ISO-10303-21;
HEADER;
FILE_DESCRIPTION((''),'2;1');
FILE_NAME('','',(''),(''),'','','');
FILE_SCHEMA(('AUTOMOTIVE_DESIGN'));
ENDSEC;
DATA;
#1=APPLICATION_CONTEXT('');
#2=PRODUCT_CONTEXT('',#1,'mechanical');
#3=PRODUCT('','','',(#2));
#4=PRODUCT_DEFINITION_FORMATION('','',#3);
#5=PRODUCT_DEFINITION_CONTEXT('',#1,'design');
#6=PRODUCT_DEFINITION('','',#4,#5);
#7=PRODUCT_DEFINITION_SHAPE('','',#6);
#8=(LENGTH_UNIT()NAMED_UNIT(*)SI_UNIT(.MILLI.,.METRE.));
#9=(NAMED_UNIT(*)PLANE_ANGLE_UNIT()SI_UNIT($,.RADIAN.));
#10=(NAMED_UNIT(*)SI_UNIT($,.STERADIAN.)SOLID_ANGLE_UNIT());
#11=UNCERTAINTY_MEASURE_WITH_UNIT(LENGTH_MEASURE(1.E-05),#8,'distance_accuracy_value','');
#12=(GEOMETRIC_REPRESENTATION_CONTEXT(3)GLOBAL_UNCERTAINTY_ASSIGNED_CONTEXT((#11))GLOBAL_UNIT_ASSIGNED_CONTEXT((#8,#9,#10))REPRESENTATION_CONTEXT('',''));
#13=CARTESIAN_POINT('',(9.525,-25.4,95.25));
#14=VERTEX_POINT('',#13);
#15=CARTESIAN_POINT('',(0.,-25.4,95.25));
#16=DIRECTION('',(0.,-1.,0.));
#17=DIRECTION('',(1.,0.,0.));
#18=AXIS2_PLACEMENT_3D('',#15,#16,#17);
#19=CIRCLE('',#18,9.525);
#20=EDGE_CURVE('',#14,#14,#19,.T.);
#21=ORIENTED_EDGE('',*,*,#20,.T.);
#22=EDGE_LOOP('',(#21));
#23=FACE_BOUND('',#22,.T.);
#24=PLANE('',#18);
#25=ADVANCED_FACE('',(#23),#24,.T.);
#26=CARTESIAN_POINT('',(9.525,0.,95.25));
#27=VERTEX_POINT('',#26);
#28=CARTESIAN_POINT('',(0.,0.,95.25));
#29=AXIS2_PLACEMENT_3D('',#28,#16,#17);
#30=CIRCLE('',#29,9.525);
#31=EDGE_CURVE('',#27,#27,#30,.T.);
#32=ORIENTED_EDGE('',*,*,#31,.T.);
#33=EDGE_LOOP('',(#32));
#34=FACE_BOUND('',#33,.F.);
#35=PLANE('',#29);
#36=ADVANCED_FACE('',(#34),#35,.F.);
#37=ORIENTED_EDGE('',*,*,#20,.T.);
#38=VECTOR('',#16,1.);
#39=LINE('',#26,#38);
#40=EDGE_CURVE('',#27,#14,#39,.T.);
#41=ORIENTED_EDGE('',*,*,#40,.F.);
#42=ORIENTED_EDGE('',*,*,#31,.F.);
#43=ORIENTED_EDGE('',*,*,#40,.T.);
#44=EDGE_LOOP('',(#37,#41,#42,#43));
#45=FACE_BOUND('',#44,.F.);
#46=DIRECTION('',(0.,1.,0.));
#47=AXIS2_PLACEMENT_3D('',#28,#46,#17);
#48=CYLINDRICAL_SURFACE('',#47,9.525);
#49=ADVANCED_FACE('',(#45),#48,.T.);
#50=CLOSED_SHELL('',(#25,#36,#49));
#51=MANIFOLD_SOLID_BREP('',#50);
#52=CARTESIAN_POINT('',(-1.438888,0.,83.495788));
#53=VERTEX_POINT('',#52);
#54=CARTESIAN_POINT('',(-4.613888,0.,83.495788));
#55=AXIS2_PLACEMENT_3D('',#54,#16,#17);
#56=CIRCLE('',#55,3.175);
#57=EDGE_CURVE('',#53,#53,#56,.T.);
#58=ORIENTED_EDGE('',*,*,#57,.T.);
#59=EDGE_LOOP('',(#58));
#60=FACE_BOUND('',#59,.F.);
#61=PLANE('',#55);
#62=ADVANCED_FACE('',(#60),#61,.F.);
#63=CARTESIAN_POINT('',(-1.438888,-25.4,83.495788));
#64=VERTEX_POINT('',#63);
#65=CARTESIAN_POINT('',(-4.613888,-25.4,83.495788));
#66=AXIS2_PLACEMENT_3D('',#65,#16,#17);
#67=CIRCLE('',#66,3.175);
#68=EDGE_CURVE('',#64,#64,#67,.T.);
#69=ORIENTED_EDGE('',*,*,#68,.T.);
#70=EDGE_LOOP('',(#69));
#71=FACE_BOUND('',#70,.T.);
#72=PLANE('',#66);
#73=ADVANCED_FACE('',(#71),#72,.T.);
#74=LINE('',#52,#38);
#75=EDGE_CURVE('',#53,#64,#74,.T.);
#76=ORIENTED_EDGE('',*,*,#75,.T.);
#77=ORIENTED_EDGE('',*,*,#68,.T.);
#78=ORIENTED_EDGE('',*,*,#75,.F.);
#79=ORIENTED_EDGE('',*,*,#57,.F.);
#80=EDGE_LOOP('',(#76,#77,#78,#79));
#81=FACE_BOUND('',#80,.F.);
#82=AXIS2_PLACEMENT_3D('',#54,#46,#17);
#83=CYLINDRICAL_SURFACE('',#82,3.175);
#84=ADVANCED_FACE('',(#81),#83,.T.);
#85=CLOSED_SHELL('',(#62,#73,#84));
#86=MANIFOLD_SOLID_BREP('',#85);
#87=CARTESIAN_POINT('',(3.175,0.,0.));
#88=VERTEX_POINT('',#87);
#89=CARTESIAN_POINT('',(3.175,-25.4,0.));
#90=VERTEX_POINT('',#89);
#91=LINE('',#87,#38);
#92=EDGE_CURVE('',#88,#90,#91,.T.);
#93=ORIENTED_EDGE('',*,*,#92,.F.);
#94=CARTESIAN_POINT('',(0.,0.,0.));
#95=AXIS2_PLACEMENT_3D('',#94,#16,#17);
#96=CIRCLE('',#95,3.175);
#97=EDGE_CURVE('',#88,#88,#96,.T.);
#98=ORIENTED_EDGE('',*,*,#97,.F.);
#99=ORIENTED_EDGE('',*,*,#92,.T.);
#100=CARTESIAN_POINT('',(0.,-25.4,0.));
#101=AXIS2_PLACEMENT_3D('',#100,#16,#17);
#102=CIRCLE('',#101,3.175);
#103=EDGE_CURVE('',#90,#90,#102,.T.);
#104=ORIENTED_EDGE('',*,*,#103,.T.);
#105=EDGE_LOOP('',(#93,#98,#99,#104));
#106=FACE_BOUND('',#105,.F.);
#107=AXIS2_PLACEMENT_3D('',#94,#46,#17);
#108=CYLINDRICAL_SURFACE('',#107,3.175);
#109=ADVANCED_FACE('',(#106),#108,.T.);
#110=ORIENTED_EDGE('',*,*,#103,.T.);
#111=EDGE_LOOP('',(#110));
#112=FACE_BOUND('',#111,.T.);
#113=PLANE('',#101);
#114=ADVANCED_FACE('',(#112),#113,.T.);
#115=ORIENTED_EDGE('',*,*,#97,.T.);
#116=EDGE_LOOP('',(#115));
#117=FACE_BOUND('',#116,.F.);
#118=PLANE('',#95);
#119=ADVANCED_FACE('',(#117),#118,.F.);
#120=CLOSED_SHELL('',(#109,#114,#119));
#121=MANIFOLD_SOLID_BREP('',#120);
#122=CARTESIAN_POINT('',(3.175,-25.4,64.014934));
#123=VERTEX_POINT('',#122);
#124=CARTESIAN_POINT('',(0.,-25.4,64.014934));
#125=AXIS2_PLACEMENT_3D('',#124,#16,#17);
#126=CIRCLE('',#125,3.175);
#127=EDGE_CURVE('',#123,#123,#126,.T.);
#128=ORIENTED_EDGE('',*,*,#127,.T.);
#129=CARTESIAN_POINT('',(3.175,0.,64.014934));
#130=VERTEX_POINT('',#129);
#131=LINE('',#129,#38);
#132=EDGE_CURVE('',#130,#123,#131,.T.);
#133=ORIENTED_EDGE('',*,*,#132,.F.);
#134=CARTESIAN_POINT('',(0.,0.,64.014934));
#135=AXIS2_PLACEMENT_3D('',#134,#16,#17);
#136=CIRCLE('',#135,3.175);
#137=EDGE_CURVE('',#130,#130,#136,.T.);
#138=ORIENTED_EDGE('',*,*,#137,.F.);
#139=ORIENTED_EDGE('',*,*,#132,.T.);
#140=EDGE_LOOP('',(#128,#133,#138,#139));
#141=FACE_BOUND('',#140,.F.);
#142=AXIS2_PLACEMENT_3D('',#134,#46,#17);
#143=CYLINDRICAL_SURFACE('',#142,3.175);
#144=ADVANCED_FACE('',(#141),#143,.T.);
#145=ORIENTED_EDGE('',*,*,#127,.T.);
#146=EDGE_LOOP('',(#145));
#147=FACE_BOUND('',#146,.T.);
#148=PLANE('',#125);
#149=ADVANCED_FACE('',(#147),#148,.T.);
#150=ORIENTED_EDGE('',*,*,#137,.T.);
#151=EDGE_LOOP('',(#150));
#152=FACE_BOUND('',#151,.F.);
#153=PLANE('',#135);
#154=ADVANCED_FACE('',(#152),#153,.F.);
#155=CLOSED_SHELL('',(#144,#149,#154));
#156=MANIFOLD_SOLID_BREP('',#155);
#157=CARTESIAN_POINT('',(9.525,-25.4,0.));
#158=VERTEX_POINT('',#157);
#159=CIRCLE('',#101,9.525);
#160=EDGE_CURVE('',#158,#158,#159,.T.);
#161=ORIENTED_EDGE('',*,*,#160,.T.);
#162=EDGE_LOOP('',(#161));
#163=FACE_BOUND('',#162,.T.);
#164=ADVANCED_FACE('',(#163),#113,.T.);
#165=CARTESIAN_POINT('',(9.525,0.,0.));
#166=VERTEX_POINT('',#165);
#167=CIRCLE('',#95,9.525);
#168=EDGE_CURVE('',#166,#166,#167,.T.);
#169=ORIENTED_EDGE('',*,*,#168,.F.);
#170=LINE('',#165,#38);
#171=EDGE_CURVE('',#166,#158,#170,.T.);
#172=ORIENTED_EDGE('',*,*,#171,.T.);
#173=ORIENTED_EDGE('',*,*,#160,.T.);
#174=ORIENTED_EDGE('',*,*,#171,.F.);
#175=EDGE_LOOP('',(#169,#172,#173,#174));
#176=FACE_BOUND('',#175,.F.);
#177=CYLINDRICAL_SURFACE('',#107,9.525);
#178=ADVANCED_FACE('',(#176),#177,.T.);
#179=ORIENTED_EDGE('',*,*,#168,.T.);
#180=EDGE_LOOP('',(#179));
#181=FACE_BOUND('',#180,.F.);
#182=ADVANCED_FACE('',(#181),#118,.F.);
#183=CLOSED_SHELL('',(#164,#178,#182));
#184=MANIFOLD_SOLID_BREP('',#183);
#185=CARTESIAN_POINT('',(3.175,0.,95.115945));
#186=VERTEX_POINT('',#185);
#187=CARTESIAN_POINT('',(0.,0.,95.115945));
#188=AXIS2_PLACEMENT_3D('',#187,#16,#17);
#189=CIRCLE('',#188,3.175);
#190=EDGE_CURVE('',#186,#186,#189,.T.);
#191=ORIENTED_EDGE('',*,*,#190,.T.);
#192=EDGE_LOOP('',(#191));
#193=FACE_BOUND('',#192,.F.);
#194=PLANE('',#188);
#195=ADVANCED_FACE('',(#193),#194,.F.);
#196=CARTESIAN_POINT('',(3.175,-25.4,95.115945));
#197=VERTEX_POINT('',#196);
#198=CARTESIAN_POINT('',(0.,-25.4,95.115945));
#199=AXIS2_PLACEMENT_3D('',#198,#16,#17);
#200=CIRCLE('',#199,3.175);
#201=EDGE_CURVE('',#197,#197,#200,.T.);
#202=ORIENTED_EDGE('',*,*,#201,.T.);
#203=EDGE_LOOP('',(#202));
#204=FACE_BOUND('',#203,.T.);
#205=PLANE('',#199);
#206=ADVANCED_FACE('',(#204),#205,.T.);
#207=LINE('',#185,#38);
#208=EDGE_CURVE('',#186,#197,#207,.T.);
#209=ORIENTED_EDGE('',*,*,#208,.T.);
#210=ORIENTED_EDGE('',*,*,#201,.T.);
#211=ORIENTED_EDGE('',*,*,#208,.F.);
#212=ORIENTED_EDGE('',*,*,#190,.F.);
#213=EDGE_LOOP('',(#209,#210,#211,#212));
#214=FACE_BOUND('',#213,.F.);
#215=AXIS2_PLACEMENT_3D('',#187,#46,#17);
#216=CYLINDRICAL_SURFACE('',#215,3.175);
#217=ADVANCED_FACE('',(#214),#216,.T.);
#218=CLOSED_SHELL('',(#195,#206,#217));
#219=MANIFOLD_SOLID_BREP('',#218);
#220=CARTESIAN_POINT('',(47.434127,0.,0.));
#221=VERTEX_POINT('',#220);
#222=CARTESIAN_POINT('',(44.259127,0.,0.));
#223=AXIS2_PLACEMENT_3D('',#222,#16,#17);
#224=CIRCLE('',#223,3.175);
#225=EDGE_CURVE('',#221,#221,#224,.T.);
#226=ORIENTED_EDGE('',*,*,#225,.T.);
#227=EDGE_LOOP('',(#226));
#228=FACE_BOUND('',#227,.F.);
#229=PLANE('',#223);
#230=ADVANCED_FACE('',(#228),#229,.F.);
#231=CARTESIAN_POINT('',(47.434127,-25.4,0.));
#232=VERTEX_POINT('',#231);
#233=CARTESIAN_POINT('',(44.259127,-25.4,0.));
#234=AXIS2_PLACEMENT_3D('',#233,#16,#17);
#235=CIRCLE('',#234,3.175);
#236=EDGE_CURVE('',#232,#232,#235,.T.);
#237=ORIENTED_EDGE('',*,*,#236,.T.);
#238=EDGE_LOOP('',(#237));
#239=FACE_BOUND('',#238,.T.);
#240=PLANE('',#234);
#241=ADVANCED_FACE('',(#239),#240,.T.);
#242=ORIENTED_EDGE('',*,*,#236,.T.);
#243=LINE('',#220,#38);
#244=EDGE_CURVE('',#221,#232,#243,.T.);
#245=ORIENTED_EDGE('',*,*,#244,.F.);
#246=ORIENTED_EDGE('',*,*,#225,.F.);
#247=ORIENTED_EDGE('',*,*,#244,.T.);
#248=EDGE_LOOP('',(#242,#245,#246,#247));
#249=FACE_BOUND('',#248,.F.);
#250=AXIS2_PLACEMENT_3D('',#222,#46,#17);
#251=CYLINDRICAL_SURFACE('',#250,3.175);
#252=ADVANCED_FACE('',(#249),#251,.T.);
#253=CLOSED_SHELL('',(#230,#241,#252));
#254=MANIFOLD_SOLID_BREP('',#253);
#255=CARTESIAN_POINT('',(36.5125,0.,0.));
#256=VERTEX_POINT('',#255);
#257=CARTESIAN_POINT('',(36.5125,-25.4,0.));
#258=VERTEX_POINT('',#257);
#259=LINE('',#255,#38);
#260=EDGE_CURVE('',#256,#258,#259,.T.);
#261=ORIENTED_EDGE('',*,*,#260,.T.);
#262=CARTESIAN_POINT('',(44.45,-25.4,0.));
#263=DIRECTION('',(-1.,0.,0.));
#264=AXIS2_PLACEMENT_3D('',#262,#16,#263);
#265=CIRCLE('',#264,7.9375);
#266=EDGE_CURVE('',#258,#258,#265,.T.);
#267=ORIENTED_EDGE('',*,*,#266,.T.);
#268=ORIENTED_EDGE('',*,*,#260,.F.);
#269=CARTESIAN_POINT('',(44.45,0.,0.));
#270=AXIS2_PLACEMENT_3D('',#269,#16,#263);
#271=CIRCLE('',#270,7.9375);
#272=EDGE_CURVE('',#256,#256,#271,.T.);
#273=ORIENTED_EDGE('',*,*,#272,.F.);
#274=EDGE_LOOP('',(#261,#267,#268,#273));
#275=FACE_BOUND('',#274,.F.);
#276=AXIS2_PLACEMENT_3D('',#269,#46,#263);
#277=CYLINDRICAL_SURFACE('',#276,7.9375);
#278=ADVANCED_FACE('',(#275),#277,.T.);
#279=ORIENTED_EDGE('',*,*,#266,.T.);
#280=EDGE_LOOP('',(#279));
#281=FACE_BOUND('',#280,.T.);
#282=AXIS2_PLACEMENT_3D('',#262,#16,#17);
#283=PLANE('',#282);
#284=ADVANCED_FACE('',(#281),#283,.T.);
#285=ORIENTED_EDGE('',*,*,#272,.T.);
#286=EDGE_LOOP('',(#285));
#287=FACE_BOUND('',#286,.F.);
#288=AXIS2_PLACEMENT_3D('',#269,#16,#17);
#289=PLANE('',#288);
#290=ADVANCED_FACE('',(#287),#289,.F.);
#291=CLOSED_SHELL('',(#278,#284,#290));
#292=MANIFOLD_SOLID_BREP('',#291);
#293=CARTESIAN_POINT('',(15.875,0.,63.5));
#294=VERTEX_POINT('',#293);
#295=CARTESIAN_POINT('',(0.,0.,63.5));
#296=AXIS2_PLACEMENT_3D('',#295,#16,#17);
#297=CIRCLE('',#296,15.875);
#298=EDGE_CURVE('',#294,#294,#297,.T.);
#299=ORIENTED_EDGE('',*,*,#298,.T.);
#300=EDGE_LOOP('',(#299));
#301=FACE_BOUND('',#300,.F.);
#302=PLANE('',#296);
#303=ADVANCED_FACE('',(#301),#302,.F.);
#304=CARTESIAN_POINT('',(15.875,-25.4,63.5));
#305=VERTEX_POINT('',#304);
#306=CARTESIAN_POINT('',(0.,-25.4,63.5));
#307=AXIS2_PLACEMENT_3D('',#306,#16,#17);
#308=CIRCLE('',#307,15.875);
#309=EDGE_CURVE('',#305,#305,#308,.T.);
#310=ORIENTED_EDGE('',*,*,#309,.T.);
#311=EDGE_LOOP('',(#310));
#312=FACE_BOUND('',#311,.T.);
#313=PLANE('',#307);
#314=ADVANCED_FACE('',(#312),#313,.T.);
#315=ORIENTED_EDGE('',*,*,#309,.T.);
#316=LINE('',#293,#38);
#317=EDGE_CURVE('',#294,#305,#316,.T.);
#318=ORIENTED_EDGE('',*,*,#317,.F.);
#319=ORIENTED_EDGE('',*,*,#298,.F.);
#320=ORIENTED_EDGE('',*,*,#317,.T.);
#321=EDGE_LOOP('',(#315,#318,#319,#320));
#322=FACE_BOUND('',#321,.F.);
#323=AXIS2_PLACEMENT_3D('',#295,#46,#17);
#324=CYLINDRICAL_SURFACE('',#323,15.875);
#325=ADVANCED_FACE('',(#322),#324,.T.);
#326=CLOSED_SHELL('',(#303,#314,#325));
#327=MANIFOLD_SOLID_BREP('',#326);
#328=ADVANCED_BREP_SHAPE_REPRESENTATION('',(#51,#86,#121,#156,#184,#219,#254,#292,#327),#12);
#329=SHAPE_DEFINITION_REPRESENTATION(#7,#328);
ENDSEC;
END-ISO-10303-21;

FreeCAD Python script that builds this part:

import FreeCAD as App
import Part
import Sketcher
from FreeCAD import Vector
Q = App.Units.Quantity

doc = App.newDocument("Part")
params = doc.addObject("Spreadsheet::Sheet", "Params")
for row, (alias, value) in enumerate([
    ("sketch1_diameter", "0.625 in"),
    ("pad1_length", "1 in"),
    ("sketch2_diameter", "0.75 in"),
    ("pad2_length", "1 in"),
    ("sketch3_diameter", "0.75 in"),
    ("pad3_length", "1 in"),
    ("sketch4_diameter", "1.25 in"),
    ("pad4_length", "1 in"),
    ("sketch5_diameter", "0.25 in"),
    ("pad5_length", "1 in"),
    ("sketch6_diameter", "0.25 in"),
    ("pad6_length", "1 in"),
    ("sketch7_diameter", "0.25 in"),
    ("pad7_length", "1 in"),
    ("sketch8_diameter", "0.25 in"),
    ("pad8_length", "1 in"),
    ("sketch9_diameter", "0.25 in"),
    ("pad9_length", "1 in"),
], start=1):
    params.set(f"A{row}", alias)
    params.set(f"B{row}", "=" + value)
    params.setAlias(f"B{row}", alias)

body = doc.addObject("PartDesign::Body", "Body")

sketch1 = body.newObject("Sketcher::SketchObject", "Sketch")
sketch1.AttachmentSupport = (doc.getObject("XZ_Plane"), [""])
sketch1.MapMode = "FlatFace"
sketch1.addGeometry(Part.Circle(Vector(44.45, 0, 0), Vector(0, 0, 1), 7.9375), False)
sketch1.addConstraint([
    Sketcher.Constraint("PointOnObject", 0, 3, -1),
    Sketcher.Constraint("Diameter", 0, Q("0.625 in")),
    Sketcher.Constraint("DistanceX", -1, 1, 0, 3, Q("1.75 in")),
])
sketch1.setExpression("Constraints[1]", "Params.sketch1_diameter")
pad1 = body.newObject("PartDesign::Pad", "Pad")
pad1.Profile = sketch1
pad1.setExpression("Length", "Params.pad1_length")
body2 = doc.addObject("PartDesign::Body", "Body001")

sketch2 = body2.newObject("Sketcher::SketchObject", "Sketch001")
sketch2.AttachmentSupport = (doc.getObject("XZ_Plane001"), [""])
sketch2.MapMode = "FlatFace"
sketch2.addGeometry(Part.Circle(Vector(0, 0, 0), Vector(0, 0, 1), 9.525), False)
sketch2.addConstraint([
    Sketcher.Constraint("Coincident", 0, 3, -1, 1),
    Sketcher.Constraint("Diameter", 0, Q("0.75 in")),
])
sketch2.setExpression("Constraints[1]", "Params.sketch2_diameter")
pad2 = body2.newObject("PartDesign::Pad", "Pad001")
pad2.Profile = sketch2
pad2.setExpression("Length", "Params.pad2_length")
body3 = doc.addObject("PartDesign::Body", "Body002")

sketch3 = body3.newObject("Sketcher::SketchObject", "Sketch002")
sketch3.AttachmentSupport = (doc.getObject("XZ_Plane002"), [""])
sketch3.MapMode = "FlatFace"
sketch3.addGeometry(Part.Circle(Vector(0, 95.25, 0), Vector(0, 0, 1), 9.525), False)
sketch3.addConstraint([
    Sketcher.Constraint("PointOnObject", 0, 3, -2),
    Sketcher.Constraint("Diameter", 0, Q("0.75 in")),
    Sketcher.Constraint("DistanceY", -1, 1, 0, 3, Q("3.75 in")),
])
sketch3.setExpression("Constraints[1]", "Params.sketch3_diameter")
pad3 = body3.newObject("PartDesign::Pad", "Pad002")
pad3.Profile = sketch3
pad3.setExpression("Length", "Params.pad3_length")
body4 = doc.addObject("PartDesign::Body", "Body003")

sketch4 = body4.newObject("Sketcher::SketchObject", "Sketch003")
sketch4.AttachmentSupport = (doc.getObject("XZ_Plane003"), [""])
sketch4.MapMode = "FlatFace"
sketch4.addGeometry(Part.Circle(Vector(0, 63.5, 0), Vector(0, 0, 1), 15.875), False)
sketch4.addConstraint([
    Sketcher.Constraint("PointOnObject", 0, 3, -2),
    Sketcher.Constraint("Diameter", 0, Q("1.25 in")),
    Sketcher.Constraint("DistanceY", -1, 1, 0, 3, Q("2.5 in")),
])
sketch4.setExpression("Constraints[1]", "Params.sketch4_diameter")
pad4 = body4.newObject("PartDesign::Pad", "Pad003")
pad4.Profile = sketch4
pad4.setExpression("Length", "Params.pad4_length")
body5 = doc.addObject("PartDesign::Body", "Body004")

sketch5 = body5.newObject("Sketcher::SketchObject", "Sketch004")
sketch5.AttachmentSupport = (doc.getObject("XZ_Plane004"), [""])
sketch5.MapMode = "FlatFace"
sketch5.addGeometry(Part.Circle(Vector(0, 95.115945, 0), Vector(0, 0, 1), 3.175), False)
sketch5.addConstraint([
    Sketcher.Constraint("PointOnObject", 0, 3, -2),
    Sketcher.Constraint("Diameter", 0, Q("0.25 in")),
    Sketcher.Constraint("DistanceY", -1, 1, 0, 3, 95.115945),
])
sketch5.setExpression("Constraints[1]", "Params.sketch5_diameter")
pad5 = body5.newObject("PartDesign::Pad", "Pad004")
pad5.Profile = sketch5
pad5.setExpression("Length", "Params.pad5_length")
body6 = doc.addObject("PartDesign::Body", "Body005")

sketch6 = body6.newObject("Sketcher::SketchObject", "Sketch005")
sketch6.AttachmentSupport = (doc.getObject("XZ_Plane005"), [""])
sketch6.MapMode = "FlatFace"
sketch6.addGeometry(Part.Circle(Vector(0, 64.014934, 0), Vector(0, 0, 1), 3.175), False)
sketch6.addConstraint([
    Sketcher.Constraint("PointOnObject", 0, 3, -2),
    Sketcher.Constraint("Diameter", 0, Q("0.25 in")),
    Sketcher.Constraint("DistanceY", -1, 1, 0, 3, 64.014934),
])
sketch6.setExpression("Constraints[1]", "Params.sketch6_diameter")
pad6 = body6.newObject("PartDesign::Pad", "Pad005")
pad6.Profile = sketch6
pad6.setExpression("Length", "Params.pad6_length")
body7 = doc.addObject("PartDesign::Body", "Body006")

sketch7 = body7.newObject("Sketcher::SketchObject", "Sketch006")
sketch7.AttachmentSupport = (doc.getObject("XZ_Plane006"), [""])
sketch7.MapMode = "FlatFace"
sketch7.addGeometry(Part.Circle(Vector(0, 0, 0), Vector(0, 0, 1), 3.175), False)
sketch7.addConstraint([
    Sketcher.Constraint("Coincident", 0, 3, -1, 1),
    Sketcher.Constraint("Diameter", 0, Q("0.25 in")),
])
sketch7.setExpression("Constraints[1]", "Params.sketch7_diameter")
pad7 = body7.newObject("PartDesign::Pad", "Pad006")
pad7.Profile = sketch7
pad7.setExpression("Length", "Params.pad7_length")
body8 = doc.addObject("PartDesign::Body", "Body007")

sketch8 = body8.newObject("Sketcher::SketchObject", "Sketch007")
sketch8.AttachmentSupport = (doc.getObject("XZ_Plane007"), [""])
sketch8.MapMode = "FlatFace"
sketch8.addGeometry(Part.Circle(Vector(44.259127, 0, 0), Vector(0, 0, 1), 3.175), False)
sketch8.addConstraint([
    Sketcher.Constraint("PointOnObject", 0, 3, -1),
    Sketcher.Constraint("Diameter", 0, Q("0.25 in")),
    Sketcher.Constraint("DistanceX", -1, 1, 0, 3, 44.259127),
])
sketch8.setExpression("Constraints[1]", "Params.sketch8_diameter")
pad8 = body8.newObject("PartDesign::Pad", "Pad007")
pad8.Profile = sketch8
pad8.setExpression("Length", "Params.pad8_length")
body9 = doc.addObject("PartDesign::Body", "Body008")

sketch9 = body9.newObject("Sketcher::SketchObject", "Sketch008")
sketch9.AttachmentSupport = (doc.getObject("XZ_Plane008"), [""])
sketch9.MapMode = "FlatFace"
sketch9.addGeometry(Part.Circle(Vector(-4.613888, 83.495788, 0), Vector(0, 0, 1), 3.175), False)
sketch9.addConstraint([
    Sketcher.Constraint("Diameter", 0, Q("0.25 in")),
    Sketcher.Constraint("DistanceY", -1, 1, 0, 3, 83.495788),
    Sketcher.Constraint("DistanceX", 0, 3, -1, 1, 4.613888),
])
sketch9.setExpression("Constraints[0]", "Params.sketch9_diameter")
pad9 = body9.newObject("PartDesign::Pad", "Pad008")
pad9.Profile = sketch9
pad9.setExpression("Length", "Params.pad9_length")

doc.recompute()
